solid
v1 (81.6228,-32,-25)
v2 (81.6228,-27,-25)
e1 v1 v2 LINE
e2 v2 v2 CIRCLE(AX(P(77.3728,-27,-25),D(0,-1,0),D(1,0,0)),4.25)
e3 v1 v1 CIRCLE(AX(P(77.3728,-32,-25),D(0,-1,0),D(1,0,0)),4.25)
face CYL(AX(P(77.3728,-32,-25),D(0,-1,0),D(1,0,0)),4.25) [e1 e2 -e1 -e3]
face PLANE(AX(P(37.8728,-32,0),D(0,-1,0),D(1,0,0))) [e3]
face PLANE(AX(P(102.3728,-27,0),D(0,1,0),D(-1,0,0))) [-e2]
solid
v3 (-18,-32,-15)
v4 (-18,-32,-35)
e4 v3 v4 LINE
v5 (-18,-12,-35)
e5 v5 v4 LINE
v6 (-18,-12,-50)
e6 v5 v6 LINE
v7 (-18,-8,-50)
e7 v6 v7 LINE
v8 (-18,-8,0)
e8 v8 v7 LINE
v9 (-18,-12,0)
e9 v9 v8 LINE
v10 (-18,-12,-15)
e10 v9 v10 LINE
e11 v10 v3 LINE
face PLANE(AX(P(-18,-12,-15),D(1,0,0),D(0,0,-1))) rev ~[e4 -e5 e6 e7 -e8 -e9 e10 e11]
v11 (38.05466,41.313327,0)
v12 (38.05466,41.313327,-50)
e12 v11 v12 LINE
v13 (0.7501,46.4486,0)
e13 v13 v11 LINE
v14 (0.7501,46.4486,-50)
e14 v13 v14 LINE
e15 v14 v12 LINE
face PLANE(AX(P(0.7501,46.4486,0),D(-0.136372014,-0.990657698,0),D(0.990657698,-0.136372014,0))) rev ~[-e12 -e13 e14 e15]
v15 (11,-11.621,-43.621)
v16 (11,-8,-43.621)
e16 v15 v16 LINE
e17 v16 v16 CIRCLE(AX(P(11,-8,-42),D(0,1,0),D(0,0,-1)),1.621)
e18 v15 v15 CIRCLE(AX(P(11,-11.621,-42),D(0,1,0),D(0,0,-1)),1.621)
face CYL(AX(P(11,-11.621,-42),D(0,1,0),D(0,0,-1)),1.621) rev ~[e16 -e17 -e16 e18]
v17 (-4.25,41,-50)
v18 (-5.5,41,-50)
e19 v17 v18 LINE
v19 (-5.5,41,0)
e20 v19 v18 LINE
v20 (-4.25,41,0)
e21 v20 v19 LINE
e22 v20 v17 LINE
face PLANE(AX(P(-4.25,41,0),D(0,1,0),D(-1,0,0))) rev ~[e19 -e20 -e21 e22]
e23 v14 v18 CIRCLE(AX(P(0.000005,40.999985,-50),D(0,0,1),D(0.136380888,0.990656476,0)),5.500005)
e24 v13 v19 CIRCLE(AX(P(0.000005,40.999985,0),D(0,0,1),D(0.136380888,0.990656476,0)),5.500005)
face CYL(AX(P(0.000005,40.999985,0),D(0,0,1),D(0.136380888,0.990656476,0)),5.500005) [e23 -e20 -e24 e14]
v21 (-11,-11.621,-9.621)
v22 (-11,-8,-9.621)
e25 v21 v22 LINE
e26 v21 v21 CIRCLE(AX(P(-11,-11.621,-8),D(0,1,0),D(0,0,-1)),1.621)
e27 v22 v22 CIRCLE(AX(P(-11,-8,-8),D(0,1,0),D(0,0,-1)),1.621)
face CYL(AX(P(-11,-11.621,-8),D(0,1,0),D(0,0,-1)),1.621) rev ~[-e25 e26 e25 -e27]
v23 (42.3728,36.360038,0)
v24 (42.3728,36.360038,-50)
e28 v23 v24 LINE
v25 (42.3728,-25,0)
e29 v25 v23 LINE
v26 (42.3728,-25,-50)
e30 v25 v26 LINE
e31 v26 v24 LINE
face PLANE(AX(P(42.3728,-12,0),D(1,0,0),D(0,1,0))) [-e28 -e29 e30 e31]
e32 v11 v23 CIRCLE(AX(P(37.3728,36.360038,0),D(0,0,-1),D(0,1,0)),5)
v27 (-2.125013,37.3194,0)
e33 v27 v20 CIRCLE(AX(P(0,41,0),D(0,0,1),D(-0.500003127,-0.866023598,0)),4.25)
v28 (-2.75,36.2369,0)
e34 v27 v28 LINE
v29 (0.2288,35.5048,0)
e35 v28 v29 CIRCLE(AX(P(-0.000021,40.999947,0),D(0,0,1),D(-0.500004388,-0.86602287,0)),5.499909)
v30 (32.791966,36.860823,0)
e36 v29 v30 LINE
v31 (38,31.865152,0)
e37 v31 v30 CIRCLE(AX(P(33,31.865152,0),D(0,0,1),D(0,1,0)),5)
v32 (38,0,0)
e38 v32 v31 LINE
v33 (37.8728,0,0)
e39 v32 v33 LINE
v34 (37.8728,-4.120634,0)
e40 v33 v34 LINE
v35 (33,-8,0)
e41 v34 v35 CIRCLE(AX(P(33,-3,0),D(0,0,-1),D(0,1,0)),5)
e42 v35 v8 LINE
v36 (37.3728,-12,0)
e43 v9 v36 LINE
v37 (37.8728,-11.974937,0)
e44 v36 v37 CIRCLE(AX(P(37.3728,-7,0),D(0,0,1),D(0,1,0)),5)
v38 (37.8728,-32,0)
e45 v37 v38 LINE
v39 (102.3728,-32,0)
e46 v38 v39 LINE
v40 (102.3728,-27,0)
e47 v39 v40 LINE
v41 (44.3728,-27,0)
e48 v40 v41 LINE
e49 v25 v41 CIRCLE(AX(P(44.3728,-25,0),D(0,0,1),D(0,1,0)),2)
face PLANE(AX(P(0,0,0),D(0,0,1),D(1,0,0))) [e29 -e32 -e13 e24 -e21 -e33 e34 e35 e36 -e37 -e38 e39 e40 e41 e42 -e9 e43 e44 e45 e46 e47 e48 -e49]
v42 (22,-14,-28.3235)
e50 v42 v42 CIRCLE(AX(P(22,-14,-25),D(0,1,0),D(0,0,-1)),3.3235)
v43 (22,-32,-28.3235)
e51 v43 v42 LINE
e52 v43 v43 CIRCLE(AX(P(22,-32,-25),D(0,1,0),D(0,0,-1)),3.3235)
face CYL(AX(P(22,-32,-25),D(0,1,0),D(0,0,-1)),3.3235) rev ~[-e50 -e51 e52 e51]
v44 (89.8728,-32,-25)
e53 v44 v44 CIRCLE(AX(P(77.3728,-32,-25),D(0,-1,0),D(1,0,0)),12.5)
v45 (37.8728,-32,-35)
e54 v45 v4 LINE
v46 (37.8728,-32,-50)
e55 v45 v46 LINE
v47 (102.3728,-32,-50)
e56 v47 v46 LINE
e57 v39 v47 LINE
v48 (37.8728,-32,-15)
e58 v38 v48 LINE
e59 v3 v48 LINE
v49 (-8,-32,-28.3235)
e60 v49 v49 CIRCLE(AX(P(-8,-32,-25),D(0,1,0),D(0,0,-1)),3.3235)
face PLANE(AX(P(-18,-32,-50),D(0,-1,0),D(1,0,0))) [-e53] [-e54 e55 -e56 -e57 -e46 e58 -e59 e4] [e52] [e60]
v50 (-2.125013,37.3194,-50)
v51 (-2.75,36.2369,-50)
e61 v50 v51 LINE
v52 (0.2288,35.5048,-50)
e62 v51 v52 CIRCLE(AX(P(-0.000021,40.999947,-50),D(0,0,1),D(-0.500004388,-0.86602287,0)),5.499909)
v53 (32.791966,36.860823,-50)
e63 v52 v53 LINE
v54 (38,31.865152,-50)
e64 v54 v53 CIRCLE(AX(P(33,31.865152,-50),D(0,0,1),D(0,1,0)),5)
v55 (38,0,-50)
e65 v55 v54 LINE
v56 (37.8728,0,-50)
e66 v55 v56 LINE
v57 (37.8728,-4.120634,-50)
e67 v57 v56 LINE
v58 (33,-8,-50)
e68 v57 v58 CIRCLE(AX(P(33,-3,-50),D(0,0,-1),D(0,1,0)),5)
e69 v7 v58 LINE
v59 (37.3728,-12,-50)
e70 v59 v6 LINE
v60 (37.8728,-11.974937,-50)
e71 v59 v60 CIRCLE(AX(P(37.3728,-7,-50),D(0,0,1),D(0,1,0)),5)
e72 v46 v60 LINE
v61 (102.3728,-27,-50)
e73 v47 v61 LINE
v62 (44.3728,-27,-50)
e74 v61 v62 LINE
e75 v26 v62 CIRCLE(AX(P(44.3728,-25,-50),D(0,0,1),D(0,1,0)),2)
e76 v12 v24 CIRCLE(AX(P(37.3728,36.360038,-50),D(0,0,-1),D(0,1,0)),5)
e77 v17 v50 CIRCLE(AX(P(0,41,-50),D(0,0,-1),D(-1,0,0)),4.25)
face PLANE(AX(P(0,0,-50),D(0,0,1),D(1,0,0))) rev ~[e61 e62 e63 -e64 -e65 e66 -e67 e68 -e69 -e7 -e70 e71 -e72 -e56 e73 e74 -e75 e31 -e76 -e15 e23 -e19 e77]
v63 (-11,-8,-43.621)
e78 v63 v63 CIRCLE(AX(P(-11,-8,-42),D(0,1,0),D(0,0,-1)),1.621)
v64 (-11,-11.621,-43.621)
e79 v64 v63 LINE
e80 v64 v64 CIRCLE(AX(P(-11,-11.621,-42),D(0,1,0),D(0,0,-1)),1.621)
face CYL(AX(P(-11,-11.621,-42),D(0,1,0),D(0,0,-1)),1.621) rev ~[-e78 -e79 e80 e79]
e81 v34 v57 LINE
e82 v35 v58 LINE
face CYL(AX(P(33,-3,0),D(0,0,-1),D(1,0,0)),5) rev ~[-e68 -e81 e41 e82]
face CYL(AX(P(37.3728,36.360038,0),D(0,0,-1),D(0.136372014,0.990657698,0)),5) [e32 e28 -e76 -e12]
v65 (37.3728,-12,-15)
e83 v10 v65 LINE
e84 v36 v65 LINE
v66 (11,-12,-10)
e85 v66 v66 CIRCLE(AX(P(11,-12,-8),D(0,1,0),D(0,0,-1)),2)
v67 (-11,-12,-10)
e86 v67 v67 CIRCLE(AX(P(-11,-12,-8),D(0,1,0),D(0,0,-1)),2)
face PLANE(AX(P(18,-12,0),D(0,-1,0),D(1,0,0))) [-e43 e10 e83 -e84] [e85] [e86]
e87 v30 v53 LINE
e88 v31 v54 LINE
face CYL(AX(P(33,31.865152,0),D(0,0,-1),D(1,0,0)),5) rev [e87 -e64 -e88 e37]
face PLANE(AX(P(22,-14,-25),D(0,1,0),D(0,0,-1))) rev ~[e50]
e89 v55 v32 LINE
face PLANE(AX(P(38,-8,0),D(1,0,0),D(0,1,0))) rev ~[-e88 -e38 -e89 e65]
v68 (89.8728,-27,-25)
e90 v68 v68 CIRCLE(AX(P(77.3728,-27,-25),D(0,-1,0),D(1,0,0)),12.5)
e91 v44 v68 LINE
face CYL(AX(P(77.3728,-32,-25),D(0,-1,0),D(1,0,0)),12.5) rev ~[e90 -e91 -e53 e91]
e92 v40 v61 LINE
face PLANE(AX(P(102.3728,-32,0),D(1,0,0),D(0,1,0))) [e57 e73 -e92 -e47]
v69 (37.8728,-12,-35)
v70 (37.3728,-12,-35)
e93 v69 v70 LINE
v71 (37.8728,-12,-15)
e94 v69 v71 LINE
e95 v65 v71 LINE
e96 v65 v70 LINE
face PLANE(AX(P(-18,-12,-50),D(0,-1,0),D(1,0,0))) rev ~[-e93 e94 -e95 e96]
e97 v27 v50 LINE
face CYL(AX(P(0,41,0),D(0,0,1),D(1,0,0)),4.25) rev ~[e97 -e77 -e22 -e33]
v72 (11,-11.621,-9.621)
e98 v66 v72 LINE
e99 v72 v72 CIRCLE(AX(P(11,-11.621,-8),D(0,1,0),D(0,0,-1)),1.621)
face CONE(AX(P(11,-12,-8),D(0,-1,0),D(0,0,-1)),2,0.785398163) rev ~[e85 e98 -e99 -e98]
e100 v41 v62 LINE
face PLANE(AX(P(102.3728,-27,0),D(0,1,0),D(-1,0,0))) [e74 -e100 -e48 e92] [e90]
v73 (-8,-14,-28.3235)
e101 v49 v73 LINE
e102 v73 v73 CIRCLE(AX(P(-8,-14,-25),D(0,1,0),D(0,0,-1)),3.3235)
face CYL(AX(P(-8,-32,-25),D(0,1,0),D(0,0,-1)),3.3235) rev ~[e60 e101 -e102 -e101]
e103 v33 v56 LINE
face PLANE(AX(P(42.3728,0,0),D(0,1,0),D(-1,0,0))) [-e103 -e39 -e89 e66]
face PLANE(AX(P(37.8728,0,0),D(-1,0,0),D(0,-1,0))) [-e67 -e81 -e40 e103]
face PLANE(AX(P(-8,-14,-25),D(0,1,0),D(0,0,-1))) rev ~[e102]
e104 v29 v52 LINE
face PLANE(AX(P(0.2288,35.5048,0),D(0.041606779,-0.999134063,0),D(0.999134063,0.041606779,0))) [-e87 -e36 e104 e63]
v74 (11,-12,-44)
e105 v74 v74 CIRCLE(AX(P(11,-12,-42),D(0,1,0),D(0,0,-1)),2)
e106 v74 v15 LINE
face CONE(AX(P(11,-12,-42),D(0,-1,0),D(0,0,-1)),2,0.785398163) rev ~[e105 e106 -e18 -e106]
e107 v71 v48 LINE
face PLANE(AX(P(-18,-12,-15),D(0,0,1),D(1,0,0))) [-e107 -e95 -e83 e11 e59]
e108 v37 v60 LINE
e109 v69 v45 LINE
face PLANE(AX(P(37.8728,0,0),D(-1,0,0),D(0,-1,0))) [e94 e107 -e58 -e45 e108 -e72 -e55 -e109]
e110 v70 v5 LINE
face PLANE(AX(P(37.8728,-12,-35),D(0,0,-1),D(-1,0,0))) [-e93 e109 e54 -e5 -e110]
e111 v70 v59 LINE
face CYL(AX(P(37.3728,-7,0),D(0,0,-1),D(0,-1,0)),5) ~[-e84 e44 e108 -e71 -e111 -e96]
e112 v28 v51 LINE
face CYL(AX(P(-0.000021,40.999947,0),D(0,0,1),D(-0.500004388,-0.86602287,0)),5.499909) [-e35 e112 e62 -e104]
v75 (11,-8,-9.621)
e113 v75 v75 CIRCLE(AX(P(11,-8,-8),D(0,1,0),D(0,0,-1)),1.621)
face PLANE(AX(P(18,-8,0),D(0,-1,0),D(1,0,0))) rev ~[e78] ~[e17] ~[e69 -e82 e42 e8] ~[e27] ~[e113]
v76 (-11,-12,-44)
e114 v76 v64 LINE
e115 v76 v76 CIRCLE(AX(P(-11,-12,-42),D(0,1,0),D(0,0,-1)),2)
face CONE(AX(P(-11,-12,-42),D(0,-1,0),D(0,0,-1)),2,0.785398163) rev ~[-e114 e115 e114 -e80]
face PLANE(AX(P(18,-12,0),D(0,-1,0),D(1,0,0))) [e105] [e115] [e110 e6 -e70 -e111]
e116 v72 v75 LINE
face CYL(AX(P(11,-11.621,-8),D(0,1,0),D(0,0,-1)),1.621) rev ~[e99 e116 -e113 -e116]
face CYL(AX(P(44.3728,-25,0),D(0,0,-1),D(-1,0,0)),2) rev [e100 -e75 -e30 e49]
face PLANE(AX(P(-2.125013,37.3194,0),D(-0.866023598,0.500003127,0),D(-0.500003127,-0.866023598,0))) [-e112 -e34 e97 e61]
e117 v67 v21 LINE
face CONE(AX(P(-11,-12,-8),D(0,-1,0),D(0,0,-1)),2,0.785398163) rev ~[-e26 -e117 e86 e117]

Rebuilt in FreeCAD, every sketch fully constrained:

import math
import FreeCAD as App
import Part
import Sketcher
Q = App.Units.Quantity


def edges_at(feature, points):
    """Names of the edges that pass closest to the given points."""
    edges = feature.Shape.Edges
    near = lambda p: min(range(len(edges)), key=lambda i: edges[i].distToShape(Part.Vertex(*p))[0])
    return sorted({f"Edge{near(p) + 1}" for p in points})

doc = App.newDocument("Part")
body = doc.addObject("PartDesign::Body", "Body")
body.AllowCompound = True

sketch1 = body.newObject("Sketcher::SketchObject", "Sketch")
sketch1.AttachmentSupport = (doc.getObject("XY_Plane"), [""])
sketch1.MapMode = "FlatFace"
sketch1.addGeometry(Part.ArcOfCircle(Part.Circle(App.Vector(0, 41, 0), App.Vector(0, 0, 1), 4.25), math.radians(-120.000207), math.radians(180)), False)
sketch1.addGeometry(Part.LineSegment(App.Vector(-2.125013, 37.3194, 0), App.Vector(-2.75, 36.2369, 0)), False)
sketch1.addGeometry(Part.ArcOfCircle(Part.Circle(App.Vector(0, 41, 0), App.Vector(0, 0, 1), 5.499966), math.radians(-120.000207), math.radians(-87.615791)), False)
sketch1.addGeometry(Part.LineSegment(App.Vector(0.2288, 35.5048, 0), App.Vector(38, 37.0777, 0)), False)
sketch1.addGeometry(Part.LineSegment(App.Vector(38, 37.0777, 0), App.Vector(38, -8, 0)), False)
sketch1.addGeometry(Part.LineSegment(App.Vector(38, -8, 0), App.Vector(-18, -8, 0)), False)
sketch1.addGeometry(Part.LineSegment(App.Vector(-18, -8, 0), App.Vector(-18, -12, 0)), False)
sketch1.addGeometry(Part.LineSegment(App.Vector(-18, -12, 0), App.Vector(42.3728, -12, 0)), False)
sketch1.addGeometry(Part.LineSegment(App.Vector(42.3728, -12, 0), App.Vector(42.3728, 40.7189, 0)), False)
sketch1.addGeometry(Part.LineSegment(App.Vector(42.3728, 40.7189, 0), App.Vector(0.7501, 46.4486, 0)), False)
sketch1.addGeometry(Part.ArcOfCircle(Part.Circle(App.Vector(0, 41, 0), App.Vector(0, 0, 1), 5.49999), math.radians(82.161455), math.radians(180)), False)
sketch1.addGeometry(Part.LineSegment(App.Vector(-5.5, 41, 0), App.Vector(-4.25, 41, 0)), False)
sketch1.addConstraint(Sketcher.Constraint("Coincident", 0, 1, 1, 1))
sketch1.addConstraint(Sketcher.Constraint("Coincident", 1, 2, 2, 1))
sketch1.addConstraint(Sketcher.Constraint("Tangent", 2, 2, 3, 1))
sketch1.addConstraint(Sketcher.Constraint("Coincident", 3, 2, 4, 1))
sketch1.addConstraint(Sketcher.Constraint("Coincident", 4, 2, 5, 1))
sketch1.addConstraint(Sketcher.Constraint("Coincident", 5, 2, 6, 1))
sketch1.addConstraint(Sketcher.Constraint("Coincident", 6, 2, 7, 1))
sketch1.addConstraint(Sketcher.Constraint("Coincident", 7, 2, 8, 1))
sketch1.addConstraint(Sketcher.Constraint("Coincident", 8, 2, 9, 1))
sketch1.addConstraint(Sketcher.Constraint("Tangent", 9, 2, 10, 1))
sketch1.addConstraint(Sketcher.Constraint("Coincident", 10, 2, 11, 1))
sketch1.addConstraint(Sketcher.Constraint("Coincident", 11, 2, 0, 2))
sketch1.addConstraint(Sketcher.Constraint("Vertical", 4))
sketch1.addConstraint(Sketcher.Constraint("Horizontal", 5))
sketch1.addConstraint(Sketcher.Constraint("Vertical", 6))
sketch1.addConstraint(Sketcher.Constraint("Horizontal", 7))
sketch1.addConstraint(Sketcher.Constraint("Vertical", 8))
sketch1.addConstraint(Sketcher.Constraint("Horizontal", 11))
sketch1.addConstraint(Sketcher.Constraint("Coincident", 2, 3, 0, 3))
sketch1.addConstraint(Sketcher.Constraint("Coincident", 10, 3, 0, 3))
sketch1.addConstraint(Sketcher.Constraint("Equal", 2, 10))
sketch1.addConstraint(Sketcher.Constraint("PointOnObject", 0, 3, -2))
sketch1.addConstraint(Sketcher.Constraint("Horizontal", 2, 3, 10, 2))
sketch1.addConstraint(Sketcher.Constraint("DistanceY", 6, 2, 6, 1, Q("4 mm")))
sketch1.addConstraint(Sketcher.Constraint("Angle", 1, Q("-120.0002 deg")))
sketch1.addConstraint(Sketcher.Constraint("Radius", 2, Q("5.5 mm")))
sketch1.addConstraint(Sketcher.Constraint("DistanceX", 5, 2, 5, 1, Q("56 mm")))
sketch1.addConstraint(Sketcher.Constraint("Radius", 0, Q("4.25 mm")))
sketch1.addConstraint(Sketcher.Constraint("DistanceY", -1, 1, 0, 3, Q("41 mm")))
sketch1.addConstraint(Sketcher.Constraint("DistanceX", -1, 1, 3, 2, Q("38 mm")))
sketch1.addConstraint(Sketcher.Constraint("DistanceY", 4, 2, -1, 1, Q("8 mm")))
sketch1.addConstraint(Sketcher.Constraint("DistanceX", 1, 2, 9, 2, Q("3.5 mm")))
sketch1.addConstraint(Sketcher.Constraint("DistanceY", 8, 1, 8, 2, Q("52.719 mm")))
sketch1.addConstraint(Sketcher.Constraint("DistanceX", 1, 2, -1, 1, Q("2.75 mm")))
sketch1.addConstraint(Sketcher.Constraint("Distance", 3, Q("37.804 mm")))
pad1 = body.newObject("PartDesign::Pad", "Pad")
pad1.Profile = sketch1
pad1.Length = 50
pad1.Reversed = True
doc.recompute()

fillet = body.newObject("PartDesign::Fillet", "Fillet")
fillet.Base = (pad1, edges_at(pad1, [(38, 37.078, -25), (42.373, 40.719, -25)]))
fillet.Radius = 5
doc.recompute()

fillet2 = body.newObject("PartDesign::Fillet", "Fillet001")
fillet2.Base = (fillet, edges_at(fillet, [(38, -8, -25), (42.373, -12, -25)]))
fillet2.Radius = 5

sketch2 = body.newObject("Sketcher::SketchObject", "Sketch001")
sketch2.AttachmentSupport = (doc.getObject("XZ_Plane"), [""])
sketch2.MapMode = "FlatFace"
sketch2.AttachmentOffset = App.Placement(App.Vector(0, 0, 12), App.Rotation())
sketch2.addGeometry(Part.Circle(App.Vector(-11, -8, 0), App.Vector(0, 0, 1), 1.621), False)
sketch2.addGeometry(Part.Circle(App.Vector(-11, -42, 0), App.Vector(0, 0, 1), 1.621), False)
sketch2.addGeometry(Part.Circle(App.Vector(11, -8, 0), App.Vector(0, 0, 1), 1.621), False)
sketch2.addGeometry(Part.Circle(App.Vector(11, -42, 0), App.Vector(0, 0, 1), 1.621), False)
sketch2.addConstraint(Sketcher.Constraint("Equal", 0, 1))
sketch2.addConstraint(Sketcher.Constraint("Equal", 1, 2))
sketch2.addConstraint(Sketcher.Constraint("Equal", 2, 3))
sketch2.addConstraint(Sketcher.Constraint("Symmetric", 0, 3, 2, 3, -2))
sketch2.addConstraint(Sketcher.Constraint("Symmetric", 1, 3, 3, 3, -2))
sketch2.addConstraint(Sketcher.Constraint("Vertical", 0, 3, 1, 3))
sketch2.addConstraint(Sketcher.Constraint("Diameter", 0, Q("3.242 mm")))
sketch2.addConstraint(Sketcher.Constraint("DistanceX", 0, 3, -1, 1, Q("11 mm")))
sketch2.addConstraint(Sketcher.Constraint("DistanceY", 0, 3, -1, 1, Q("8 mm")))
sketch2.addConstraint(Sketcher.Constraint("DistanceY", 1, 3, -1, 1, Q("42 mm")))
doc.recompute()
hole = body.newObject("PartDesign::Hole", "Hole")
hole.Profile = sketch2
hole.ThreadType = "None"
hole.Diameter = 3.242
hole.DepthType = "Dimension"
hole.Depth = 4
hole.DrillPoint = "Flat"
hole.HoleCutType = "Countersink"
hole.HoleCutDiameter = 4
hole.HoleCutCountersinkAngle = 90

sketch3 = body.newObject("Sketcher::SketchObject", "Sketch002")
sketch3.AttachmentSupport = (doc.getObject("XY_Plane"), [""])
sketch3.MapMode = "FlatFace"
sketch3.addGeometry(Part.LineSegment(App.Vector(42.3728, 0, 0), App.Vector(37.8728, 0, 0)), False)
sketch3.addGeometry(Part.LineSegment(App.Vector(37.8728, 0, 0), App.Vector(37.8728, -32, 0)), False)
sketch3.addGeometry(Part.LineSegment(App.Vector(37.8728, -32, 0), App.Vector(102.3728, -32, 0)), False)
sketch3.addGeometry(Part.LineSegment(App.Vector(102.3728, -32, 0), App.Vector(102.3728, -27, 0)), False)
sketch3.addGeometry(Part.LineSegment(App.Vector(102.3728, -27, 0), App.Vector(42.3728, -27, 0)), False)
sketch3.addGeometry(Part.LineSegment(App.Vector(42.3728, -27, 0), App.Vector(42.3728, 0, 0)), False)
sketch3.addConstraint(Sketcher.Constraint("Coincident", 0, 2, 1, 1))
sketch3.addConstraint(Sketcher.Constraint("Coincident", 1, 2, 2, 1))
sketch3.addConstraint(Sketcher.Constraint("Coincident", 2, 2, 3, 1))
sketch3.addConstraint(Sketcher.Constraint("Coincident", 3, 2, 4, 1))
sketch3.addConstraint(Sketcher.Constraint("Coincident", 4, 2, 5, 1))
sketch3.addConstraint(Sketcher.Constraint("Coincident", 5, 2, 0, 1))
sketch3.addConstraint(Sketcher.Constraint("Horizontal", 0))
sketch3.addConstraint(Sketcher.Constraint("Vertical", 1))
sketch3.addConstraint(Sketcher.Constraint("Horizontal", 2))
sketch3.addConstraint(Sketcher.Constraint("Vertical", 3))
sketch3.addConstraint(Sketcher.Constraint("Horizontal", 4))
sketch3.addConstraint(Sketcher.Constraint("Vertical", 5))
sketch3.addConstraint(Sketcher.Constraint("PointOnObject", 0, 2, -1))
sketch3.addConstraint(Sketcher.Constraint("DistanceY", 1, 2, 1, 1, Q("32 mm")))
sketch3.addConstraint(Sketcher.Constraint("DistanceY", 3, 1, 3, 2, Q("5 mm")))
sketch3.addConstraint(Sketcher.Constraint("DistanceX", 0, 2, 0, 1, Q("4.5 mm")))
sketch3.addConstraint(Sketcher.Constraint("DistanceX", 2, 1, 2, 2, Q("64.5 mm")))
sketch3.addConstraint(Sketcher.Constraint("DistanceX", -1, 1, 0, 2, Q("37.8728 mm")))
pad2 = body.newObject("PartDesign::Pad", "Pad001")
pad2.Profile = sketch3
pad2.Length = 50
pad2.Reversed = True
doc.recompute()

fillet3 = body.newObject("PartDesign::Fillet", "Fillet002")
fillet3.Base = (pad2, edges_at(pad2, [(42.373, -27, -25)]))
fillet3.Radius = 2

sketch4 = body.newObject("Sketcher::SketchObject", "Sketch003")
sketch4.AttachmentSupport = (doc.getObject("XZ_Plane"), [""])
sketch4.MapMode = "FlatFace"
sketch4.AttachmentOffset = App.Placement(App.Vector(0, 0, 32), App.Rotation())
sketch4.addGeometry(Part.Circle(App.Vector(77.3728, -25, 0), App.Vector(0, 0, 1), 12.5), False)
sketch4.addGeometry(Part.Circle(App.Vector(77.3728, -25, 0), App.Vector(0, 0, 1), 4.25), False)
sketch4.addConstraint(Sketcher.Constraint("Coincident", 1, 3, 0, 3))
sketch4.addConstraint(Sketcher.Constraint("Diameter", 0, Q("25 mm")))
sketch4.addConstraint(Sketcher.Constraint("DistanceY", 0, 3, -1, 1, Q("25 mm")))
sketch4.addConstraint(Sketcher.Constraint("Diameter", 1, Q("8.5 mm")))
sketch4.addConstraint(Sketcher.Constraint("DistanceX", -1, 1, 0, 3, Q("77.3728 mm")))
pocket1 = body.newObject("PartDesign::Pocket", "Pocket")
pocket1.Profile = sketch4
pocket1.Length = 10

sketch5 = body.newObject("Sketcher::SketchObject", "Sketch004")
sketch5.AttachmentSupport = (doc.getObject("XZ_Plane"), [""])
sketch5.MapMode = "FlatFace"
sketch5.AttachmentOffset = App.Placement(App.Vector(0, 0, 12), App.Rotation())
sketch5.addGeometry(Part.LineSegment(App.Vector(37.8728, -15, 0), App.Vector(-18, -15, 0)), False)
sketch5.addGeometry(Part.LineSegment(App.Vector(-18, -15, 0), App.Vector(-18, -35, 0)), False)
sketch5.addGeometry(Part.LineSegment(App.Vector(-18, -35, 0), App.Vector(37.8728, -35, 0)), False)
sketch5.addGeometry(Part.LineSegment(App.Vector(37.8728, -35, 0), App.Vector(37.8728, -15, 0)), False)
sketch5.addConstraint(Sketcher.Constraint("Coincident", 0, 2, 1, 1))
sketch5.addConstraint(Sketcher.Constraint("Coincident", 1, 2, 2, 1))
sketch5.addConstraint(Sketcher.Constraint("Coincident", 2, 2, 3, 1))
sketch5.addConstraint(Sketcher.Constraint("Coincident", 3, 2, 0, 1))
sketch5.addConstraint(Sketcher.Constraint("Horizontal", 0))
sketch5.addConstraint(Sketcher.Constraint("Vertical", 1))
sketch5.addConstraint(Sketcher.Constraint("Horizontal", 2))
sketch5.addConstraint(Sketcher.Constraint("Vertical", 3))
sketch5.addConstraint(Sketcher.Constraint("DistanceY", 1, 2, 1, 1, Q("20 mm")))
sketch5.addConstraint(Sketcher.Constraint("DistanceY", 0, 2, -1, 1, Q("15 mm")))
sketch5.addConstraint(Sketcher.Constraint("DistanceX", 0, 2, -1, 1, Q("18 mm")))
sketch5.addConstraint(Sketcher.Constraint("DistanceX", 0, 2, 0, 1, Q("55.8728 mm")))
pad3 = body.newObject("PartDesign::Pad", "Pad002")
pad3.Profile = sketch5
pad3.Length = 20

sketch6 = body.newObject("Sketcher::SketchObject", "Sketch005")
sketch6.AttachmentSupport = (doc.getObject("XZ_Plane"), [""])
sketch6.MapMode = "FlatFace"
sketch6.AttachmentOffset = App.Placement(App.Vector(0, 0, 32), App.Rotation())
sketch6.addGeometry(Part.Circle(App.Vector(-8, -25, 0), App.Vector(0, 0, 1), 3.3235), False)
sketch6.addGeometry(Part.Circle(App.Vector(22, -25, 0), App.Vector(0, 0, 1), 3.3235), False)
sketch6.addConstraint(Sketcher.Constraint("Equal", 0, 1))
sketch6.addConstraint(Sketcher.Constraint("Horizontal", 0, 3, 1, 3))
sketch6.addConstraint(Sketcher.Constraint("Diameter", 0, Q("6.647 mm")))
sketch6.addConstraint(Sketcher.Constraint("DistanceX", 0, 3, -1, 1, Q("8 mm")))
sketch6.addConstraint(Sketcher.Constraint("DistanceY", 0, 3, -1, 1, Q("25 mm")))
sketch6.addConstraint(Sketcher.Constraint("DistanceX", -1, 1, 1, 3, Q("22 mm")))
doc.recompute()
hole2 = body.newObject("PartDesign::Hole", "Hole001")
hole2.Profile = sketch6
hole2.ThreadType = "None"
hole2.Diameter = 6.647
hole2.DepthType = "Dimension"
hole2.Depth = 18
hole2.DrillPoint = "Flat"

doc.recompute()
